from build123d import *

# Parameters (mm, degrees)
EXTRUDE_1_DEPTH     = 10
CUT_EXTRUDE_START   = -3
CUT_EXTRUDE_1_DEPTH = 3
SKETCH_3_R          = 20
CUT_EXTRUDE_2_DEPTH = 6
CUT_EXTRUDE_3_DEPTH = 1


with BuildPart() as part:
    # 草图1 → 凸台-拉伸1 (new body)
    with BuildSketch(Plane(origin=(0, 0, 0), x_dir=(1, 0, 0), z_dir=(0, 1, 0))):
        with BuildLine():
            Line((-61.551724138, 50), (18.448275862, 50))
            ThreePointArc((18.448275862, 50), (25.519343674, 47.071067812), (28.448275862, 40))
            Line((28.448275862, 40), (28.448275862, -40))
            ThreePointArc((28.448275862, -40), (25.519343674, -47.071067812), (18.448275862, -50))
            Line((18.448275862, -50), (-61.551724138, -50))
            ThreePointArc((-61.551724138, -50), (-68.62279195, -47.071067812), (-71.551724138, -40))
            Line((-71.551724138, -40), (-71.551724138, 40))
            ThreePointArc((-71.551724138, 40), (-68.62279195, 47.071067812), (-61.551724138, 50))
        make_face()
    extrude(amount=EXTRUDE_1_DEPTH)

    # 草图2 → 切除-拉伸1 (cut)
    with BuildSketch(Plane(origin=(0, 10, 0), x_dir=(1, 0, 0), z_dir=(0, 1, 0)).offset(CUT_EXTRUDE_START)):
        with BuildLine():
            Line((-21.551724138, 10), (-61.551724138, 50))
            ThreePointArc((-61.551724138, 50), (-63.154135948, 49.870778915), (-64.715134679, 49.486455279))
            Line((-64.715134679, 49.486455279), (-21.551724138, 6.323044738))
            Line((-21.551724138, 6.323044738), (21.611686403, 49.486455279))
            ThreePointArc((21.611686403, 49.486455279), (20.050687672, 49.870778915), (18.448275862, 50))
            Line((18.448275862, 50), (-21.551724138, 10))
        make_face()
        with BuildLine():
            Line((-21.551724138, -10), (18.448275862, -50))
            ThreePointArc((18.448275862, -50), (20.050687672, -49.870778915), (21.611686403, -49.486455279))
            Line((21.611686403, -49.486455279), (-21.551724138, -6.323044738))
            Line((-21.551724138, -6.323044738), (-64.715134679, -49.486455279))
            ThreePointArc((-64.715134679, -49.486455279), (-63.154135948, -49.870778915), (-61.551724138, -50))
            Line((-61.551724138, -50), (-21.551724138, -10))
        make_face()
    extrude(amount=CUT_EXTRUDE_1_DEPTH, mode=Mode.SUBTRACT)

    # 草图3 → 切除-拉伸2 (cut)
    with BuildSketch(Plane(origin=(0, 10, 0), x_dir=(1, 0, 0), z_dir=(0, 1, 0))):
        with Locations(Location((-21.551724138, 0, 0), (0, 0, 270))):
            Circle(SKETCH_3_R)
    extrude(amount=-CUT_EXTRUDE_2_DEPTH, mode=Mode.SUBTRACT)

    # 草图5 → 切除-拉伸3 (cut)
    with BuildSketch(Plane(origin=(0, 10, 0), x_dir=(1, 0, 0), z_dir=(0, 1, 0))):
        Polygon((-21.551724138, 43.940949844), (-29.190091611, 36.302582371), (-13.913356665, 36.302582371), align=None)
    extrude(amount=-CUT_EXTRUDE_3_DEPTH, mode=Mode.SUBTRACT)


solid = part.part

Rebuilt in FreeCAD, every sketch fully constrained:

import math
import FreeCAD as App
import Part
import Sketcher
from FreeCAD import Vector


def add_polygon(sketch, points):
    """Adds a closed chain of lines whose ends are joined by coincident constraints."""
    first, n = sketch.GeometryCount, len(points)
    for a, b in zip(points, points[1:] + points[:1]):
        sketch.addGeometry(Part.LineSegment(App.Vector(*a, 0), App.Vector(*b, 0)), False)
    for i in range(n):
        sketch.addConstraint(Sketcher.Constraint("Coincident", first + i, 2, first + (i + 1) % n, 1))

doc = App.newDocument("Part")
params = doc.addObject("Spreadsheet::Sheet", "Params")
for row, (alias, value) in enumerate([
    ("sketch1_radius", "10 mm"),
    ("sketch1_width", "80 mm"),
    ("pad1_length", "10 mm"),
    ("sketch2_radius", "10 mm"),
    ("pocket1_length", "3 mm"),
    ("sketch3_diameter", "40 mm"),
    ("pocket2_length", "6 mm"),
    ("pocket3_length", "1 mm"),
], start=1):
    params.set(f"A{row}", alias)
    params.set(f"B{row}", "=" + value)
    params.setAlias(f"B{row}", alias)

body = doc.addObject("PartDesign::Body", "Body")

sketch1 = body.newObject("Sketcher::SketchObject", "Sketch")
sketch1.AttachmentSupport = (doc.getObject("XZ_Plane"), [""])
sketch1.MapMode = "FlatFace"
sketch1.addGeometry(Part.LineSegment(Vector(18, -50, 0), Vector(-62, -50, 0)), False)
sketch1.addGeometry(Part.ArcOfCircle(Part.Circle(Vector(-62, -40, 0), Vector(0, 0, 1), 10), math.radians(180), math.radians(270)), False)
sketch1.addGeometry(Part.LineSegment(Vector(-72, -40, 0), Vector(-72, 40, 0)), False)
sketch1.addGeometry(Part.ArcOfCircle(Part.Circle(Vector(-62, 40, 0), Vector(0, 0, 1), 10), math.radians(90), math.radians(180)), False)
sketch1.addGeometry(Part.LineSegment(Vector(-62, 50, 0), Vector(18, 50, 0)), False)
sketch1.addGeometry(Part.ArcOfCircle(Part.Circle(Vector(18, 40, 0), Vector(0, 0, 1), 10), math.radians(0), math.radians(90)), False)
sketch1.addGeometry(Part.LineSegment(Vector(28, 40, 0), Vector(28, -40, 0)), False)
sketch1.addGeometry(Part.ArcOfCircle(Part.Circle(Vector(18, -40, 0), Vector(0, 0, 1), 10), math.radians(-90), math.radians(0)), False)
sketch1.addConstraint(Sketcher.Constraint("Tangent", 0, 2, 1, 2))
sketch1.addConstraint(Sketcher.Constraint("Tangent", 1, 1, 2, 1))
sketch1.addConstraint(Sketcher.Constraint("Tangent", 2, 2, 3, 2))
sketch1.addConstraint(Sketcher.Constraint("Tangent", 3, 1, 4, 1))
sketch1.addConstraint(Sketcher.Constraint("Tangent", 4, 2, 5, 2))
sketch1.addConstraint(Sketcher.Constraint("Tangent", 5, 1, 6, 1))
sketch1.addConstraint(Sketcher.Constraint("Tangent", 6, 2, 7, 2))
sketch1.addConstraint(Sketcher.Constraint("Tangent", 7, 1, 0, 1))
sketch1.addConstraint(Sketcher.Constraint("Horizontal", 0))
sketch1.addConstraint(Sketcher.Constraint("Vertical", 2))
sketch1.addConstraint(Sketcher.Constraint("Horizontal", 4))
sketch1.addConstraint(Sketcher.Constraint("Vertical", 6))
sketch1.addConstraint(Sketcher.Constraint("Equal", 1, 3))
sketch1.addConstraint(Sketcher.Constraint("Equal", 3, 5))
sketch1.addConstraint(Sketcher.Constraint("Equal", 5, 7))
sketch1.addConstraint(Sketcher.Constraint("Equal", 4, 2))
sketch1.addConstraint(Sketcher.Constraint("Radius", 1, 10.0))
sketch1.addConstraint(Sketcher.Constraint("DistanceX", 0, 2, 0, 1, 80.0))
sketch1.addConstraint(Sketcher.Constraint("DistanceY", 1, 3, -1, 1, 40.0))
sketch1.addConstraint(Sketcher.Constraint("DistanceX", 1, 3, -1, 1, 61.551724))
sketch1.setExpression("Constraints[16]", "Params.sketch1_radius")
sketch1.setExpression("Constraints[17]", "Params.sketch1_width")
pad1 = body.newObject("PartDesign::Pad", "Pad")
pad1.Profile = sketch1
pad1.setExpression("Length", "Params.pad1_length")
pad1.Reversed = True

sketch2 = body.newObject("Sketcher::SketchObject", "Sketch001")
sketch2.AttachmentSupport = (doc.getObject("XZ_Plane"), [""])
sketch2.MapMode = "FlatFace"
sketch2.AttachmentOffset = App.Placement(Vector(0, 0, -7), App.Rotation())
sketch2.addGeometry(Part.LineSegment(Vector(-21.6, -10, 0), Vector(-61.6, -50, 0)), False)
sketch2.addGeometry(Part.ArcOfCircle(Part.Circle(Vector(-61.6, -40, 0), Vector(0, 0, 1), 10), math.radians(-108.44), math.radians(-90)), False)
sketch2.addGeometry(Part.LineSegment(Vector(-64.7, -49.5, 0), Vector(-21.6, -6.3, 0)), False)
sketch2.addGeometry(Part.LineSegment(Vector(-21.6, -6.3, 0), Vector(21.6, -49.5, 0)), False)
sketch2.addGeometry(Part.ArcOfCircle(Part.Circle(Vector(18.4, -40, 0), Vector(0, 0, 1), 10), math.radians(-90), math.radians(-71.56)), False)
sketch2.addGeometry(Part.LineSegment(Vector(18.4, -50, 0), Vector(-21.6, -10, 0)), False)
sketch2.addGeometry(Part.LineSegment(Vector(-21.6, 10, 0), Vector(18.4, 50, 0)), False)
sketch2.addGeometry(Part.ArcOfCircle(Part.Circle(Vector(18.4, 40, 0), Vector(0, 0, 1), 10), math.radians(71.56), math.radians(90)), False)
sketch2.addGeometry(Part.LineSegment(Vector(21.6, 49.5, 0), Vector(-21.6, 6.3, 0)), False)
sketch2.addGeometry(Part.LineSegment(Vector(-21.6, 6.3, 0), Vector(-64.7, 49.5, 0)), False)
sketch2.addGeometry(Part.ArcOfCircle(Part.Circle(Vector(-61.6, 40, 0), Vector(0, 0, 1), 10), math.radians(90), math.radians(108.44)), False)
sketch2.addGeometry(Part.LineSegment(Vector(-61.6, 50, 0), Vector(-21.6, 10, 0)), False)
sketch2.addConstraint(Sketcher.Constraint("Coincident", 0, 2, 1, 2))
sketch2.addConstraint(Sketcher.Constraint("Coincident", 1, 1, 2, 1))
sketch2.addConstraint(Sketcher.Constraint("Coincident", 2, 2, 3, 1))
sketch2.addConstraint(Sketcher.Constraint("Coincident", 3, 2, 4, 2))
sketch2.addConstraint(Sketcher.Constraint("Coincident", 4, 1, 5, 1))
sketch2.addConstraint(Sketcher.Constraint("Coincident", 5, 2, 0, 1))
sketch2.addConstraint(Sketcher.Constraint("Coincident", 6, 2, 7, 2))
sketch2.addConstraint(Sketcher.Constraint("Coincident", 7, 1, 8, 1))
sketch2.addConstraint(Sketcher.Constraint("Coincident", 8, 2, 9, 1))
sketch2.addConstraint(Sketcher.Constraint("Coincident", 9, 2, 10, 2))
sketch2.addConstraint(Sketcher.Constraint("Coincident", 10, 1, 11, 1))
sketch2.addConstraint(Sketcher.Constraint("Coincident", 11, 2, 6, 1))
sketch2.addConstraint(Sketcher.Constraint("Equal", 1, 4))
sketch2.addConstraint(Sketcher.Constraint("Equal", 4, 7))
sketch2.addConstraint(Sketcher.Constraint("Equal", 7, 10))
sketch2.addConstraint(Sketcher.Constraint("Symmetric", 4, 3, 7, 3, -1))
sketch2.addConstraint(Sketcher.Constraint("Symmetric", 1, 3, 10, 3, -1))
sketch2.addConstraint(Sketcher.Constraint("Symmetric", 2, 2, 8, 2, -1))
sketch2.addConstraint(Sketcher.Constraint("Symmetric", 5, 2, 11, 2, -1))
sketch2.addConstraint(Sketcher.Constraint("Parallel", 0, 2))
sketch2.addConstraint(Sketcher.Constraint("Perpendicular", 2, 3))
sketch2.addConstraint(Sketcher.Constraint("Parallel", 3, 5))
sketch2.addConstraint(Sketcher.Constraint("Perpendicular", 5, 6))
sketch2.addConstraint(Sketcher.Constraint("Parallel", 6, 8))
sketch2.addConstraint(Sketcher.Constraint("Perpendicular", 8, 9))
sketch2.addConstraint(Sketcher.Constraint("Parallel", 9, 11))
sketch2.addConstraint(Sketcher.Constraint("Horizontal", 1, 3, 4, 3))
sketch2.addConstraint(Sketcher.Constraint("Horizontal", 1, 1, 3, 2))
sketch2.addConstraint(Sketcher.Constraint("Horizontal", 7, 1, 9, 2))
sketch2.addConstraint(Sketcher.Constraint("Vertical", 10, 3, 0, 2))
sketch2.addConstraint(Sketcher.Constraint("Vertical", 7, 3, 4, 1))
sketch2.addConstraint(Sketcher.Constraint("Radius", 1, 10.0))
sketch2.addConstraint(Sketcher.Constraint("DistanceY", 1, 3, -1, 1, 40.0))
sketch2.addConstraint(Sketcher.Constraint("DistanceY", 5, 2, -1, 1, 10.0))
sketch2.addConstraint(Sketcher.Constraint("DistanceY", 2, 2, 7, 1, 55.8095))
sketch2.addConstraint(Sketcher.Constraint("DistanceX", 1, 3, -1, 1, 61.551724))
sketch2.setExpression("Constraints[31]", "Params.sketch2_radius")
pocket1 = body.newObject("PartDesign::Pocket", "Pocket")
pocket1.Profile = sketch2
pocket1.setExpression("Length", "Params.pocket1_length")

sketch3 = body.newObject("Sketcher::SketchObject", "Sketch002")
sketch3.AttachmentSupport = (doc.getObject("XZ_Plane"), [""])
sketch3.MapMode = "FlatFace"
sketch3.AttachmentOffset = App.Placement(Vector(0, 0, -10), App.Rotation())
sketch3.addGeometry(Part.Circle(Vector(-22, 0, 0), Vector(0, 0, 1), 20), False)
sketch3.addConstraint(Sketcher.Constraint("PointOnObject", 0, 3, -1))
sketch3.addConstraint(Sketcher.Constraint("Diameter", 0, 40.0))
sketch3.addConstraint(Sketcher.Constraint("DistanceX", 0, 3, -1, 1, 21.551724))
sketch3.setExpression("Constraints[1]", "Params.sketch3_diameter")
pocket2 = body.newObject("PartDesign::Pocket", "Pocket001")
pocket2.Profile = sketch3
pocket2.setExpression("Length", "Params.pocket2_length")
pocket2.Reversed = True

sketch4 = body.newObject("Sketcher::SketchObject", "Sketch003")
sketch4.AttachmentSupport = (doc.getObject("XZ_Plane"), [""])
sketch4.MapMode = "FlatFace"
sketch4.AttachmentOffset = App.Placement(Vector(0, 0, -10), App.Rotation())
add_polygon(sketch4, [(-22, -44), (-29, -36), (-14, -36)])
sketch4.addConstraint(Sketcher.Constraint("Horizontal", 1))
sketch4.addConstraint(Sketcher.Constraint("Perpendicular", 0, 2))
sketch4.addConstraint(Sketcher.Constraint("Equal", 0, 2))
sketch4.addConstraint(Sketcher.Constraint("DistanceX", 1, 1, 1, 2, 15.276735))
sketch4.addConstraint(Sketcher.Constraint("DistanceX", 0, 2, -1, 1, 29.190092))
sketch4.addConstraint(Sketcher.Constraint("DistanceY", 2, 2, -1, 1, 43.94095))
pocket3 = body.newObject("PartDesign::Pocket", "Pocket002")
pocket3.Profile = sketch4
pocket3.setExpression("Length", "Params.pocket3_length")
pocket3.Reversed = True

doc.recompute()
